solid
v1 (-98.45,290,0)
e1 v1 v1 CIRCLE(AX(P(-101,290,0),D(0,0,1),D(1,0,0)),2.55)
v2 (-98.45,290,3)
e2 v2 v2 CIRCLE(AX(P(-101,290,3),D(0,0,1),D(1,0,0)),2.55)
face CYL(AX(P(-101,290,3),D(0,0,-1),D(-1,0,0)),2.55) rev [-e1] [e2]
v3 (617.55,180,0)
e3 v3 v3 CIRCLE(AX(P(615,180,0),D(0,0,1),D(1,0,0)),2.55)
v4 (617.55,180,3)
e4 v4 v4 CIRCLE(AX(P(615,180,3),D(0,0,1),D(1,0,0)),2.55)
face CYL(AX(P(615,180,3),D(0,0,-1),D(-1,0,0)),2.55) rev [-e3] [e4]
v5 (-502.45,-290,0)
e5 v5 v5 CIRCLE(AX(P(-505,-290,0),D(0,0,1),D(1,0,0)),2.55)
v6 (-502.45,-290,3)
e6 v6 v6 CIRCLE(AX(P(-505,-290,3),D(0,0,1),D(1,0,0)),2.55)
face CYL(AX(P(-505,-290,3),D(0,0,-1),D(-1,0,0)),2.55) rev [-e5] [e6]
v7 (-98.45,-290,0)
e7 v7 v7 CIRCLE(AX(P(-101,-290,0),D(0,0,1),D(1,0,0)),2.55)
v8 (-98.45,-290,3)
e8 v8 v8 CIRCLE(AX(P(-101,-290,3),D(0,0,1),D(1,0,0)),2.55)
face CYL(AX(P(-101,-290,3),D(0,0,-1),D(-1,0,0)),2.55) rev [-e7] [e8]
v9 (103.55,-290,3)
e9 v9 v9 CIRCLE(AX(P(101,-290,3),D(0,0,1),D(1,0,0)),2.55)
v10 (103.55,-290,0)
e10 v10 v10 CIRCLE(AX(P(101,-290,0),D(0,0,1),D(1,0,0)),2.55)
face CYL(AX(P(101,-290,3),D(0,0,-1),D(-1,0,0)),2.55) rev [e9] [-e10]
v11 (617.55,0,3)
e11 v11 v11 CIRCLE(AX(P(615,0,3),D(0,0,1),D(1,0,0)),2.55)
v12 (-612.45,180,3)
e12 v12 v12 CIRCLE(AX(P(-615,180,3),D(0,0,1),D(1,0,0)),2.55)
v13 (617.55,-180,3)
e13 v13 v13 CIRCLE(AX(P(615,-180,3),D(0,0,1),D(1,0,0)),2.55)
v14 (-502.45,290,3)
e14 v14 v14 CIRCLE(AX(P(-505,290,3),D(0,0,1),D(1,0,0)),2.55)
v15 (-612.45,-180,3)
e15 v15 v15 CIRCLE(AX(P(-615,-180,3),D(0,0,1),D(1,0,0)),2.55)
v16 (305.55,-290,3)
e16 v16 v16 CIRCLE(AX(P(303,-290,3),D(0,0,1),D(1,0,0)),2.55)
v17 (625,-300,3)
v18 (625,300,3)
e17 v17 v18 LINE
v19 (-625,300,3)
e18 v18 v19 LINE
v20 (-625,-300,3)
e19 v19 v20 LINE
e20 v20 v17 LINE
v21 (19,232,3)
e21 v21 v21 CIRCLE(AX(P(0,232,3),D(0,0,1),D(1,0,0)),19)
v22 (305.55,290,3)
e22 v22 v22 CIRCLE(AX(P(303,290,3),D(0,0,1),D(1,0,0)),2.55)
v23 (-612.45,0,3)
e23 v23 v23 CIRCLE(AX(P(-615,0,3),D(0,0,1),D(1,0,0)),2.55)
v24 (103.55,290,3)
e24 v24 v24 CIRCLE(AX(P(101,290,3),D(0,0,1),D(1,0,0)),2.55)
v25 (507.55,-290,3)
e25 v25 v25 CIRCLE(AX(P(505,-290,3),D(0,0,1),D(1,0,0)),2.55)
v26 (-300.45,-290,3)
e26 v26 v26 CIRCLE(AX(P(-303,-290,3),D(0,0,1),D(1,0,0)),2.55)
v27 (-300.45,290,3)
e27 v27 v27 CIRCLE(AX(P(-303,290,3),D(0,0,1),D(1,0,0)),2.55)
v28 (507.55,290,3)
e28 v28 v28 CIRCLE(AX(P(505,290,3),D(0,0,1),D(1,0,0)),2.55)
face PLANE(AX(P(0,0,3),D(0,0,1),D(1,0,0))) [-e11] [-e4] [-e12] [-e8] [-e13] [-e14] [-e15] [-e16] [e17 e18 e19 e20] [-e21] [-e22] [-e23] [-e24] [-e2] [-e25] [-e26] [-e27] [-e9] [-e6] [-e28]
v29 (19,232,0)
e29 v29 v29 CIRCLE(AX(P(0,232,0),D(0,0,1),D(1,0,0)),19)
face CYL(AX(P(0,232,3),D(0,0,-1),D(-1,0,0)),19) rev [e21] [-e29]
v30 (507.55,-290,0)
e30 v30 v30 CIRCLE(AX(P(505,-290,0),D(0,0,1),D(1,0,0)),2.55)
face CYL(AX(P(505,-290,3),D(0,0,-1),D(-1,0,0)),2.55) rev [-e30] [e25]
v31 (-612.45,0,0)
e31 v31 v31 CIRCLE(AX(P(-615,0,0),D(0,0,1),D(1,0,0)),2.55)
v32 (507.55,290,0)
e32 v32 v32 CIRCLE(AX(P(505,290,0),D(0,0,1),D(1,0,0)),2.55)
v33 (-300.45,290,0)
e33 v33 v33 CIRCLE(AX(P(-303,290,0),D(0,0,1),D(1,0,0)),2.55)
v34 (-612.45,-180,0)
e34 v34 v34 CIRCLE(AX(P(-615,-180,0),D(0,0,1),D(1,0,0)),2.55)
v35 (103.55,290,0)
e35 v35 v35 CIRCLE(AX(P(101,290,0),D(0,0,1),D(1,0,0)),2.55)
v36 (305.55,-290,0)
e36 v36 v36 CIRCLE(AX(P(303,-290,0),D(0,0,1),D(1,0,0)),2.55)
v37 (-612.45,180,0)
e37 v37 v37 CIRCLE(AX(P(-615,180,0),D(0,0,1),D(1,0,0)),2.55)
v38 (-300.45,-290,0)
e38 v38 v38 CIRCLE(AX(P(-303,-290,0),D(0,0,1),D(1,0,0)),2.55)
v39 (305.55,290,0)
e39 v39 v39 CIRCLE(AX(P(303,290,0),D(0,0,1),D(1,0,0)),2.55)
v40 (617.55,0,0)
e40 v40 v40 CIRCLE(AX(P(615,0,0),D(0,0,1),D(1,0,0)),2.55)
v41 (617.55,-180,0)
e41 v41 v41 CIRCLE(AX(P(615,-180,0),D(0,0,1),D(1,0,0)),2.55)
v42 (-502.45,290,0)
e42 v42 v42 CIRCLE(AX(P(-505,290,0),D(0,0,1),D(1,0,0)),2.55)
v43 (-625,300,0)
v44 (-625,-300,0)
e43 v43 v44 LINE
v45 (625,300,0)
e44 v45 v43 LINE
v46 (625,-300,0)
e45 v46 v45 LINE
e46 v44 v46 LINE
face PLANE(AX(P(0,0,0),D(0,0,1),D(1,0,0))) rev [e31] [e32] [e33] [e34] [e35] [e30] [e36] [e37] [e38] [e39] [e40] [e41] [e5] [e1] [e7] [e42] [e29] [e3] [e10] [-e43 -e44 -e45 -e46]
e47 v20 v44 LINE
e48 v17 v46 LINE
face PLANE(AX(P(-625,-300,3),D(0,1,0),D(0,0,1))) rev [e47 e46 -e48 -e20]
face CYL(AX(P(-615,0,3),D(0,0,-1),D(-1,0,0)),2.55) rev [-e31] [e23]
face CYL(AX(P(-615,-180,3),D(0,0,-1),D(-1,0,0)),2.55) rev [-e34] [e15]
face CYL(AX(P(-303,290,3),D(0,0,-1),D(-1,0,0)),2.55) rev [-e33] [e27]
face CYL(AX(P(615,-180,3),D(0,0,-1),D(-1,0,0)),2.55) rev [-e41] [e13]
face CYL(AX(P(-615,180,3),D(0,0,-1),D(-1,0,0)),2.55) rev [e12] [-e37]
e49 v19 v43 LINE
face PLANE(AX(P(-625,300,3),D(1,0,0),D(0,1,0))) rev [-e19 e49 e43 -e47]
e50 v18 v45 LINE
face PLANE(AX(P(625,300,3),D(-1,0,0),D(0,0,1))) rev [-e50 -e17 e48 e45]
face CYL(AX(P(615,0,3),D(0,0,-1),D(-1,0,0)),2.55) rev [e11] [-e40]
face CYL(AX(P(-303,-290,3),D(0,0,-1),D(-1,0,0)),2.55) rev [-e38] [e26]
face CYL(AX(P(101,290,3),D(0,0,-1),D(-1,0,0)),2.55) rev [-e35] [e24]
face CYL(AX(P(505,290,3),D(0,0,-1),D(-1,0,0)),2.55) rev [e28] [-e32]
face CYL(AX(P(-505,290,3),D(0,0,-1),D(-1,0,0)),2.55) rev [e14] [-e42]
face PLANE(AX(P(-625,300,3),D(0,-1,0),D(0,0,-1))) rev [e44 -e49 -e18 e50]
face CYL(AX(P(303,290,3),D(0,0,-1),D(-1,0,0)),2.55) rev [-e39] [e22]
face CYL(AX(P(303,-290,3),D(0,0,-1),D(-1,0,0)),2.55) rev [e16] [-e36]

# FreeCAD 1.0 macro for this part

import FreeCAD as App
import Part
import Sketcher
Q = App.Units.Quantity

doc = App.newDocument("Part")
params = doc.addObject("Spreadsheet::Sheet", "Params")
for row, (alias, value) in enumerate([
    ("sketch1_diameter", "38 mm"),
    ("sketch1_diameter2", "5.1 mm"),
    ("sketch1_width", "1250 mm"),
    ("sketch1_height", "600 mm"),
    ("pad1_length", "3 mm"),
], start=1):
    params.set(f"A{row}", alias)
    params.set(f"B{row}", "=" + value)
    params.setAlias(f"B{row}", alias)

body = doc.addObject("PartDesign::Body", "Body")

# Sketch on XY plane
sketch1 = body.newObject("Sketcher::SketchObject", "Sketch")
sketch1.AttachmentSupport = (doc.getObject("XY_Plane"), [""])
sketch1.MapMode = "FlatFace"
sketch1.addGeometry([
    Part.LineSegment(App.Vector(-625, 300, 0), App.Vector(-625, -300, 0)),  # 0
    Part.LineSegment(App.Vector(-625, -300, 0), App.Vector(625, -300, 0)),  # 1
    Part.LineSegment(App.Vector(625, -300, 0), App.Vector(625, 300, 0)),  # 2
    Part.LineSegment(App.Vector(625, 300, 0), App.Vector(-625, 300, 0)),  # 3
    Part.Circle(App.Vector(-505, -290, 0), App.Vector(0, 0, 1), 2.5),  # 4
    Part.Circle(App.Vector(-615, -180, 0), App.Vector(0, 0, 1), 2.5),  # 5
    Part.Circle(App.Vector(-303, -290, 0), App.Vector(0, 0, 1), 2.5),  # 6
    Part.Circle(App.Vector(-101, -290, 0), App.Vector(0, 0, 1), 2.5),  # 7
    Part.Circle(App.Vector(101, -290, 0), App.Vector(0, 0, 1), 2.5),  # 8
    Part.Circle(App.Vector(303, -290, 0), App.Vector(0, 0, 1), 2.5),  # 9
    Part.Circle(App.Vector(505, -290, 0), App.Vector(0, 0, 1), 2.5),  # 10
    Part.Circle(App.Vector(615, -180, 0), App.Vector(0, 0, 1), 2.5),  # 11
    Part.Circle(App.Vector(-615, 0, 0), App.Vector(0, 0, 1), 2.5),  # 12
    Part.Circle(App.Vector(-615, 180, 0), App.Vector(0, 0, 1), 2.5),  # 13
    Part.Circle(App.Vector(-505, 290, 0), App.Vector(0, 0, 1), 2.5),  # 14
    Part.Circle(App.Vector(-303, 290, 0), App.Vector(0, 0, 1), 2.5),  # 15
    Part.Circle(App.Vector(-101, 290, 0), App.Vector(0, 0, 1), 2.5),  # 16
    Part.Circle(App.Vector(615, 0, 0), App.Vector(0, 0, 1), 2.5),  # 17
    Part.Circle(App.Vector(0, 232, 0), App.Vector(0, 0, 1), 19),  # 18
    Part.Circle(App.Vector(101, 290, 0), App.Vector(0, 0, 1), 2.5),  # 19
    Part.Circle(App.Vector(303, 290, 0), App.Vector(0, 0, 1), 2.5),  # 20
    Part.Circle(App.Vector(615, 180, 0), App.Vector(0, 0, 1), 2.5),  # 21
    Part.Circle(App.Vector(505, 290, 0), App.Vector(0, 0, 1), 2.5),  # 22
], False)
sketch1.addConstraint([
    Sketcher.Constraint("Coincident", 0, 2, 1, 1),
    Sketcher.Constraint("Coincident", 1, 2, 2, 1),
    Sketcher.Constraint("Coincident", 2, 2, 3, 1),
    Sketcher.Constraint("Coincident", 3, 2, 0, 1),
    Sketcher.Constraint("Vertical", 0),
    Sketcher.Constraint("Horizontal", 1),
    Sketcher.Constraint("Vertical", 2),
    Sketcher.Constraint("Horizontal", 3),
    Sketcher.Constraint("Equal", 4, 5),
    Sketcher.Constraint("Equal", 5, 6),
    Sketcher.Constraint("Equal", 6, 7),
    Sketcher.Constraint("Equal", 7, 8),
    Sketcher.Constraint("Equal", 8, 9),
    Sketcher.Constraint("Equal", 9, 10),
    Sketcher.Constraint("Equal", 10, 11),
    Sketcher.Constraint("Equal", 11, 12),
    Sketcher.Constraint("Equal", 12, 13),
    Sketcher.Constraint("Equal", 13, 14),
    Sketcher.Constraint("Equal", 14, 15),
    Sketcher.Constraint("Equal", 15, 16),
    Sketcher.Constraint("Equal", 16, 17),
    Sketcher.Constraint("Equal", 17, 19),
    Sketcher.Constraint("Equal", 19, 20),
    Sketcher.Constraint("Equal", 20, 21),
    Sketcher.Constraint("Equal", 21, 22),
    Sketcher.Constraint("Symmetric", 11, 3, 13, 3, -1, 1),
    Sketcher.Constraint("Symmetric", 10, 3, 14, 3, -1, 1),
    Sketcher.Constraint("Symmetric", 9, 3, 15, 3, -1, 1),
    Sketcher.Constraint("Symmetric", 8, 3, 16, 3, -1, 1),
    Sketcher.Constraint("Symmetric", 12, 3, 17, 3, -1, 1),
    Sketcher.Constraint("Symmetric", 7, 3, 19, 3, -1, 1),
    Sketcher.Constraint("Symmetric", 6, 3, 20, 3, -1, 1),
    Sketcher.Constraint("Symmetric", 5, 3, 21, 3, -1, 1),
    Sketcher.Constraint("Symmetric", 4, 3, 22, 3, -1, 1),
    Sketcher.Constraint("Symmetric", 0, 2, 2, 2, -1, 1),
    Sketcher.Constraint("Symmetric", 7, 3, 8, 3, -2),
    Sketcher.Constraint("Symmetric", 6, 3, 9, 3, -2),
    Sketcher.Constraint("Symmetric", 4, 3, 10, 3, -2),
    Sketcher.Constraint("Symmetric", 5, 3, 11, 3, -2),
    Sketcher.Constraint("PointOnObject", 12, 3, -1),
    Sketcher.Constraint("PointOnObject", 18, 3, -2),
    Sketcher.Constraint("Horizontal", 4, 3, 6, 3),
    Sketcher.Constraint("Horizontal", 6, 3, 7, 3),
    Sketcher.Constraint("Vertical", 5, 3, 12, 3),
    Sketcher.Constraint("Diameter", 18, Q("38 mm")),
    Sketcher.Constraint("Diameter", 4, Q("5.1 mm")),
    Sketcher.Constraint("DistanceX", 1, 1, 1, 2, Q("1250 mm")),
    Sketcher.Constraint("DistanceY", 0, 2, 0, 1, Q("600 mm")),
    Sketcher.Constraint("DistanceX", 4, 3, -1, 1, Q("505 mm")),
    Sketcher.Constraint("DistanceY", 4, 3, -1, 1, Q("290 mm")),
    Sketcher.Constraint("DistanceX", 5, 3, -1, 1, Q("615 mm")),
    Sketcher.Constraint("DistanceY", 5, 3, -1, 1, Q("180 mm")),
    Sketcher.Constraint("DistanceX", 6, 3, -1, 1, Q("303 mm")),
    Sketcher.Constraint("DistanceX", 7, 3, -1, 1, Q("101 mm")),
    Sketcher.Constraint("DistanceY", -1, 1, 18, 3, Q("232 mm")),
])
sketch1.setExpression("Constraints[44]", "Params.sketch1_diameter")
sketch1.setExpression("Constraints[45]", "Params.sketch1_diameter2")
sketch1.setExpression("Constraints[46]", "Params.sketch1_width")
sketch1.setExpression("Constraints[47]", "Params.sketch1_height")
pad1 = body.newObject("PartDesign::Pad", "Pad")
pad1.Profile = sketch1
pad1.setExpression("Length", "Params.pad1_length")

doc.recompute()
